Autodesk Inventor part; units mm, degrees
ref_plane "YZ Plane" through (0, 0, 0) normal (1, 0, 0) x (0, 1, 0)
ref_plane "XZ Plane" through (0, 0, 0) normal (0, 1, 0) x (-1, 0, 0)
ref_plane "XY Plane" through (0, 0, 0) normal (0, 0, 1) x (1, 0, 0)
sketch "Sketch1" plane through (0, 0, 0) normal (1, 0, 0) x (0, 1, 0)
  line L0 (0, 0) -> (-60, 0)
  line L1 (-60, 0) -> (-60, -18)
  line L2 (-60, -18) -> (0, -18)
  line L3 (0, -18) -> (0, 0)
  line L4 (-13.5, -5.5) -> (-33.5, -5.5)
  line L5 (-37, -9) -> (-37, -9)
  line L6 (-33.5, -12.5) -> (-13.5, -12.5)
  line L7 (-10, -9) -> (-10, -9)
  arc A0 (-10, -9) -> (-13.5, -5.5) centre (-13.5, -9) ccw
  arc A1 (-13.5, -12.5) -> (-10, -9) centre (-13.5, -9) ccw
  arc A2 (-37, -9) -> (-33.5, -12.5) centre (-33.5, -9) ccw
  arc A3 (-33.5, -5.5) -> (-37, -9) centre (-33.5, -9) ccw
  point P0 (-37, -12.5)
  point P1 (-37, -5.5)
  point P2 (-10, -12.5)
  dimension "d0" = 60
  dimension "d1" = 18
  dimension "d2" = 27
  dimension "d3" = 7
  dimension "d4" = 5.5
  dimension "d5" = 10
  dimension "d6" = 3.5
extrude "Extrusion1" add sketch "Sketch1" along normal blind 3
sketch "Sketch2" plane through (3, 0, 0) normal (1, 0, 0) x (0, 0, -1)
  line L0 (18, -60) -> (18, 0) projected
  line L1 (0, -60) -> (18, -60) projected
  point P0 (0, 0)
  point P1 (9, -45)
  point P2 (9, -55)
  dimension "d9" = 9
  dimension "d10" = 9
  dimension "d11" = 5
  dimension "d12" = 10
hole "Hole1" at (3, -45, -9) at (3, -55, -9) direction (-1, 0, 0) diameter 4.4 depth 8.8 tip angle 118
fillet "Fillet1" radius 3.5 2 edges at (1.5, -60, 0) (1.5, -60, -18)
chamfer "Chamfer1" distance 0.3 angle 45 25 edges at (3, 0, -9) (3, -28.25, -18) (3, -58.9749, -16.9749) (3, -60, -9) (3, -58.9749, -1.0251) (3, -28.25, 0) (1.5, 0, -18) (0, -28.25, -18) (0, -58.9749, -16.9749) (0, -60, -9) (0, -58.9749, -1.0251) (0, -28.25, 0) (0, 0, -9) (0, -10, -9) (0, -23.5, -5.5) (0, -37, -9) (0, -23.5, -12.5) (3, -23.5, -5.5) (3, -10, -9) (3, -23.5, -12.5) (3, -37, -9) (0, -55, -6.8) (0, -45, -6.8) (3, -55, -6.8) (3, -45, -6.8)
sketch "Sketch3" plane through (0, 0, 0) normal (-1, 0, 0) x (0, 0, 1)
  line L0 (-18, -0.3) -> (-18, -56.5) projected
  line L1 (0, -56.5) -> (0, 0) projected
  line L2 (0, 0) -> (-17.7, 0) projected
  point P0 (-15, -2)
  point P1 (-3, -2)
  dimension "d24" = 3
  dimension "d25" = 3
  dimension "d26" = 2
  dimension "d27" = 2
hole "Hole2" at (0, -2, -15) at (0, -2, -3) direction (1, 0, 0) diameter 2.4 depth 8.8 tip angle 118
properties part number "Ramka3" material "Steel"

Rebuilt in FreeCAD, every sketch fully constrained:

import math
import FreeCAD as App
import Part
import Sketcher

V = App.Vector
Q = App.Units.Quantity


def edges_at(feature, points):
    """Names of the edges that pass closest to the given points."""
    edges = feature.Shape.Edges
    near = lambda p: min(range(len(edges)), key=lambda i: edges[i].distToShape(Part.Vertex(*p))[0])
    return sorted({f"Edge{near(p) + 1}" for p in points})

doc = App.newDocument("Part")
body = doc.addObject("PartDesign::Body", "Body")

# Sketch on YZ plane
sketch1 = body.newObject("Sketcher::SketchObject", "Sketch")
sketch1.AttachmentSupport = (doc.getObject("YZ_Plane"), [""])
sketch1.MapMode = "FlatFace"
sketch1.addGeometry([
    Part.LineSegment(V(0, -18, 0), V(0, 0, 0)),  # 0
    Part.LineSegment(V(0, 0, 0), V(-60, 0, 0)),  # 1
    Part.LineSegment(V(-60, 0, 0), V(-60, -18, 0)),  # 2
    Part.LineSegment(V(-60, -18, 0), V(0, -18, 0)),  # 3
    Part.LineSegment(V(-33.5, -5.5, 0), V(-13.5, -5.5, 0)),  # 4
    Part.ArcOfCircle(Part.Circle(V(-13.5, -9, 0), V(0, 0, 1), 3.5), math.radians(-90), math.radians(90)),  # 5
    Part.LineSegment(V(-13.5, -12.5, 0), V(-33.5, -12.5, 0)),  # 6
    Part.ArcOfCircle(Part.Circle(V(-33.5, -9, 0), V(0, 0, 1), 3.5), math.radians(90), math.radians(270)),  # 7
], False)
sketch1.addConstraint([
    Sketcher.Constraint("Coincident", 0, 2, 1, 1),
    Sketcher.Constraint("Coincident", 1, 2, 2, 1),
    Sketcher.Constraint("Coincident", 2, 2, 3, 1),
    Sketcher.Constraint("Coincident", 3, 2, 0, 1),
    Sketcher.Constraint("Tangent", 4, 2, 5, 2),
    Sketcher.Constraint("Tangent", 5, 1, 6, 1),
    Sketcher.Constraint("Tangent", 6, 2, 7, 2),
    Sketcher.Constraint("Tangent", 7, 1, 4, 1),
    Sketcher.Constraint("Vertical", 0),
    Sketcher.Constraint("Horizontal", 1),
    Sketcher.Constraint("Vertical", 2),
    Sketcher.Constraint("Horizontal", 3),
    Sketcher.Constraint("Horizontal", 4),
    Sketcher.Constraint("Horizontal", 6),
    Sketcher.Constraint("Coincident", 0, 2, -1, 1),
    Sketcher.Constraint("Radius", 5, Q("3.5 mm")),
    Sketcher.Constraint("DistanceX", 1, 2, 1, 1, Q("60 mm")),
    Sketcher.Constraint("DistanceY", 0, 1, 0, 2, Q("18 mm")),
    Sketcher.Constraint("DistanceY", 4, 2, -1, 1, Q("5.5 mm")),
    Sketcher.Constraint("DistanceX", 4, 1, 4, 2, Q("20 mm")),
    Sketcher.Constraint("DistanceX", 5, 3, -1, 1, Q("13.5 mm")),
])
pad1 = body.newObject("PartDesign::Pad", "Pad")
pad1.Profile = sketch1
pad1.Length = 3

# Sketch on YZ plane
sketch2 = body.newObject("Sketcher::SketchObject", "Sketch001")
sketch2.AttachmentSupport = (doc.getObject("YZ_Plane"), [""])
sketch2.MapMode = "FlatFace"
sketch2.AttachmentOffset = App.Placement(V(0, 0, 3), App.Rotation())
sketch2.addGeometry([
    Part.Circle(V(-45, -9, 0), V(0, 0, 1), 2.2),
    Part.Circle(V(-55, -9, 0), V(0, 0, 1), 2.2),
], False)
sketch2.addConstraint([
    Sketcher.Constraint("Equal", 0, 1),
    Sketcher.Constraint("Horizontal", 0, 3, 1, 3),
    Sketcher.Constraint("Diameter", 0, Q("4.4 mm")),
    Sketcher.Constraint("DistanceX", 0, 3, -1, 1, Q("45 mm")),
    Sketcher.Constraint("DistanceY", 0, 3, -1, 1, Q("9 mm")),
    Sketcher.Constraint("DistanceX", 1, 3, -1, 1, Q("55 mm")),
])
doc.recompute()
hole = body.newObject("PartDesign::Hole", "Hole")
hole.Profile = sketch2
hole.ThreadType = "None"
hole.Diameter = 4.4
hole.DepthType = "Dimension"
hole.Depth = 8.8
hole.DrillPoint = "Angled"
hole.DrillPointAngle = 118
doc.recompute()

fillet = body.newObject("PartDesign::Fillet", "Fillet")
fillet.Base = (hole, edges_at(hole, [(1.5, -60, 0), (1.5, -60, -18)]))
fillet.Radius = 3.5
doc.recompute()

chamfer = body.newObject("PartDesign::Chamfer", "Chamfer")
chamfer.Base = (fillet, edges_at(fillet, [
    (3, 0, -9),
    (3, -28.25, -18),
    (3, -58.975, -16.975),
    (3, -60, -9),
    (3, -58.975, -1.025),
    (3, -28.25, 0),
    (1.5, 0, -18),
    (0, -28.25, -18),
    (0, -58.975, -16.975),
    (0, -60, -9),
    (0, -58.975, -1.025),
    (0, -28.25, 0),
    (0, 0, -9),
    (0, -10, -9),
    (0, -23.5, -5.5),
    (0, -37, -9),
    (0, -23.5, -12.5),
    (3, -23.5, -5.5),
    (3, -10, -9),
    (3, -23.5, -12.5),
    (3, -37, -9),
    (0, -55, -6.8),
    (0, -45, -6.8),
    (3, -55, -6.8),
    (3, -45, -6.8),
]))
chamfer.Size = 0.3

# Sketch on YZ plane
sketch3 = body.newObject("Sketcher::SketchObject", "Sketch002")
sketch3.AttachmentSupport = (doc.getObject("YZ_Plane"), [""])
sketch3.MapMode = "FlatFace"
sketch3.addGeometry([
    Part.Circle(V(-2, -15, 0), V(0, 0, 1), 1.2),
    Part.Circle(V(-2, -3, 0), V(0, 0, 1), 1.2),
], False)
sketch3.addConstraint([
    Sketcher.Constraint("Equal", 0, 1),
    Sketcher.Constraint("Vertical", 0, 3, 1, 3),
    Sketcher.Constraint("Diameter", 0, Q("2.4 mm")),
    Sketcher.Constraint("DistanceX", 0, 3, -1, 1, Q("2 mm")),
    Sketcher.Constraint("DistanceY", 0, 3, -1, 1, Q("15 mm")),
    Sketcher.Constraint("DistanceY", 1, 3, -1, 1, Q("3 mm")),
])
doc.recompute()
hole2 = body.newObject("PartDesign::Hole", "Hole001")
hole2.Profile = sketch3
hole2.ThreadType = "None"
hole2.Diameter = 2.4
hole2.DepthType = "Dimension"
hole2.Depth = 8.8
hole2.DrillPoint = "Angled"
hole2.DrillPointAngle = 118
hole2.Reversed = True

doc.recompute()
